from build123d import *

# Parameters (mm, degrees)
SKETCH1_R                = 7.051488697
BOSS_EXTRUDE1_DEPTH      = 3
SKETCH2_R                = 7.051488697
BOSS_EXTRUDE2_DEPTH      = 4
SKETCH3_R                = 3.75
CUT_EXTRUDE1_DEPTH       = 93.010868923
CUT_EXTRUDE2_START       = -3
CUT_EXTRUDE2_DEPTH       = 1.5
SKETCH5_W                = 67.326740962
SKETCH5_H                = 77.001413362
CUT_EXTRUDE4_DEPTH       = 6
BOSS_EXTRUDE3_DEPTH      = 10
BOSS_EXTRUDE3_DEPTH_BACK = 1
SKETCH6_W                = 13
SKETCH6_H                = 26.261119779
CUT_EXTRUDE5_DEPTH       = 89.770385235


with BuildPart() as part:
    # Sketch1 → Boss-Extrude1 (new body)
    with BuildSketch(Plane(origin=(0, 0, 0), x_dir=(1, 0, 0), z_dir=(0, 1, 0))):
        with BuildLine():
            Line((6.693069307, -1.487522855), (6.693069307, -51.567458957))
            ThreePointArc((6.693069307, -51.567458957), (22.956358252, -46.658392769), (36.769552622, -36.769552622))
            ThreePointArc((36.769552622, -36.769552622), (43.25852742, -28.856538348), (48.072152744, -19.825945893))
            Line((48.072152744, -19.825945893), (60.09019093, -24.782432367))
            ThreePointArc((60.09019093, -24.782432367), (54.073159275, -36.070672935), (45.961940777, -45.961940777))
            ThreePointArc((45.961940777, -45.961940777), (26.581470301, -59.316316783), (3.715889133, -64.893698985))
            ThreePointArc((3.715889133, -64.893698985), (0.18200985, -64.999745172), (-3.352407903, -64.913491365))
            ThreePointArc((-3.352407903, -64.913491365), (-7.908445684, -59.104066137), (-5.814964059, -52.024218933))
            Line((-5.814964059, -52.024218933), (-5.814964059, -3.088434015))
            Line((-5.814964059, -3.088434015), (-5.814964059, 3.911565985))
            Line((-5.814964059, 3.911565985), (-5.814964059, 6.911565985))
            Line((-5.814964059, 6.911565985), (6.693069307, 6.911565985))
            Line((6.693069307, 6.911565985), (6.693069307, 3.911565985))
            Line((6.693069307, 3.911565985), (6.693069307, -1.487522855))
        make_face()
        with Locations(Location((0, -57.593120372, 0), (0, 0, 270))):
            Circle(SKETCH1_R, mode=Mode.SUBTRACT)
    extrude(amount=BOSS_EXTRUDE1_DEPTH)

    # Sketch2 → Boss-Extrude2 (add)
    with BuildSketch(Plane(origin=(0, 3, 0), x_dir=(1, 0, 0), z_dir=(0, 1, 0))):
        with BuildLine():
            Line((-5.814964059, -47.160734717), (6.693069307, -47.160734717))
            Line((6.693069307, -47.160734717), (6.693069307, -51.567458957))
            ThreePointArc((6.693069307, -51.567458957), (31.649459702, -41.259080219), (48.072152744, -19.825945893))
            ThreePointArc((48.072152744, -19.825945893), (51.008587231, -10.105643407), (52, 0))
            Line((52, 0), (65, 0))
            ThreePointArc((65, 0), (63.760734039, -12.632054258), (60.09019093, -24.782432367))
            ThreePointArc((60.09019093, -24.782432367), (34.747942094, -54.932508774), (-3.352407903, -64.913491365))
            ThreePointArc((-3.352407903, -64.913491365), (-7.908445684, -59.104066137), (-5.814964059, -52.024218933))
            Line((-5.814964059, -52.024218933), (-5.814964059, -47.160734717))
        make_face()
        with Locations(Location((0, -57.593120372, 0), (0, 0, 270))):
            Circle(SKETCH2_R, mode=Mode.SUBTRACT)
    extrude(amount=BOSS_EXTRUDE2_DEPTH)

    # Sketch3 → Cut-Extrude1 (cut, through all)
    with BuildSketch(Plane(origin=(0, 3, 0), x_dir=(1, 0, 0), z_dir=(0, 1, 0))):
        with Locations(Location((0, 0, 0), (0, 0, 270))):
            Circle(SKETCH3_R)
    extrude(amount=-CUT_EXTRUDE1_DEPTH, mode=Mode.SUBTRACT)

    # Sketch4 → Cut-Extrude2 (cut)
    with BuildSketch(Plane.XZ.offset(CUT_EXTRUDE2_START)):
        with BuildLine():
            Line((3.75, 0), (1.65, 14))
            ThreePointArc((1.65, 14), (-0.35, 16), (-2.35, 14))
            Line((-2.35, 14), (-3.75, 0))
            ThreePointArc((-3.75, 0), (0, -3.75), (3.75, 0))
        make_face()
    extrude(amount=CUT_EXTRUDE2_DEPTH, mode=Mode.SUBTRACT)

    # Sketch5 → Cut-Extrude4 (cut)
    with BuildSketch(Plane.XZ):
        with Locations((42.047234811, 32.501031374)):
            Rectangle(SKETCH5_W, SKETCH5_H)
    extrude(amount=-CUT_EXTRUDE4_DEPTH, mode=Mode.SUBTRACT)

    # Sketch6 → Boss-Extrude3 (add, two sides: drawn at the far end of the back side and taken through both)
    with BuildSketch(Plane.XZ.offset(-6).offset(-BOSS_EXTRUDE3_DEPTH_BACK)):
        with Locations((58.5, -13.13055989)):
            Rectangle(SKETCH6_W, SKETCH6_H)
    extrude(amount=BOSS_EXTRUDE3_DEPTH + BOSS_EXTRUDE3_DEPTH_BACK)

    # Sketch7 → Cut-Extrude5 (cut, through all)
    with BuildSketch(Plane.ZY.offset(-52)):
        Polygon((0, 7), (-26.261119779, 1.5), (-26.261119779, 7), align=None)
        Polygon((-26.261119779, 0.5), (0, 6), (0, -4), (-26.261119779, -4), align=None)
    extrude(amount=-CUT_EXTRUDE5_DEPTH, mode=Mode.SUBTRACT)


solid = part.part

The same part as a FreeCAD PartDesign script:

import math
import FreeCAD as App
import Part
import Sketcher

V = App.Vector
Q = App.Units.Quantity


def add_polygon(sketch, points):
    """Adds a closed chain of lines whose ends are joined by coincident constraints."""
    first, n = sketch.GeometryCount, len(points)
    for a, b in zip(points, points[1:] + points[:1]):
        sketch.addGeometry(Part.LineSegment(App.Vector(*a, 0), App.Vector(*b, 0)), False)
    for i in range(n):
        sketch.addConstraint(Sketcher.Constraint("Coincident", first + i, 2, first + (i + 1) % n, 1))

doc = App.newDocument("Part")
body = doc.addObject("PartDesign::Body", "Body")

# Sketch on XZ plane
sketch1 = doc.addObject("Sketcher::SketchObject", "Sketch")
body.addObject(sketch1)
sketch1.AttachmentSupport = (doc.XZ_Plane, [""])
sketch1.MapMode = "FlatFace"
sketch1.addGeometry([
    Part.ArcOfCircle(Part.Circle(V(0, 0, 0), V(0, 0, 1), 52), math.radians(45), math.radians(83)),  # 0
    Part.LineSegment(V(7, 52, 0), V(7, -7, 0)),  # 1
    Part.LineSegment(V(7, -7, 0), V(-6, -7, 0)),  # 2
    Part.LineSegment(V(-6, -7, 0), V(-6, 52, 0)),  # 3
    Part.ArcOfCircle(Part.Circle(V(0, 58, 0), V(0, 0, 1), 8), math.radians(115), math.radians(224)),  # 4
    Part.ArcOfCircle(Part.Circle(V(0, 0, 0), V(0, 0, 1), 65), math.radians(86.72), math.radians(92.96)),  # 5
    Part.ArcOfCircle(Part.Circle(V(0, 0, 0), V(0, 0, 1), 65), math.radians(45), math.radians(87)),  # 6
    Part.ArcOfCircle(Part.Circle(V(0, 0, 0), V(0, 0, 1), 65), math.radians(22), math.radians(45)),  # 7
    Part.LineSegment(V(60, 25, 0), V(48, 20, 0)),  # 8
    Part.ArcOfCircle(Part.Circle(V(0, 0, 0), V(0, 0, 1), 52), math.radians(22), math.radians(45)),  # 9
    Part.Circle(V(0, 58, 0), V(0, 0, 1), 7),  # 10
], False)
sketch1.addConstraint([
    Sketcher.Constraint("Coincident", 0, 2, 1, 1),
    Sketcher.Constraint("Coincident", 1, 2, 2, 1),
    Sketcher.Constraint("Coincident", 2, 2, 3, 1),
    Sketcher.Constraint("Coincident", 3, 2, 4, 2),
    Sketcher.Constraint("Coincident", 4, 1, 5, 2),
    Sketcher.Constraint("Tangent", 5, 1, 6, 2),
    Sketcher.Constraint("Tangent", 6, 1, 7, 2),
    Sketcher.Constraint("Coincident", 7, 1, 8, 1),
    Sketcher.Constraint("Coincident", 8, 2, 9, 1),
    Sketcher.Constraint("Tangent", 9, 2, 0, 1),
    Sketcher.Constraint("Vertical", 1),
    Sketcher.Constraint("Horizontal", 2),
    Sketcher.Constraint("Vertical", 3),
    Sketcher.Constraint("Coincident", 0, 3, -1, 1),
    Sketcher.Constraint("Coincident", 5, 3, -1, 1),
    Sketcher.Constraint("Coincident", 7, 3, -1, 1),
    Sketcher.Constraint("Coincident", 10, 3, 4, 3),
    Sketcher.Constraint("Equal", 0, 9),
    Sketcher.Constraint("PointOnObject", 4, 3, -2),
    Sketcher.Constraint("Radius", 0, Q("52 mm")),
    Sketcher.Constraint("Radius", 5, Q("65 mm")),
    Sketcher.Constraint("Radius", 4, Q("8.051489 mm")),
    Sketcher.Constraint("Diameter", 10, Q("14.102977 mm")),
    Sketcher.Constraint("DistanceY", 1, 2, 7, 1, Q("31.693998 mm")),
    Sketcher.Constraint("DistanceY", -1, 1, 5, 1, Q("64.893699 mm")),
    Sketcher.Constraint("DistanceY", 3, 2, 4, 3, Q("5.568901 mm")),
    Sketcher.Constraint("DistanceX", 9, 2, 8, 2, Q("11.3026 mm")),
    Sketcher.Constraint("DistanceX", 2, 2, 2, 1, Q("12.508033 mm")),
    Sketcher.Constraint("DistanceY", 1, 2, 1, 1, Q("58.479025 mm")),
    Sketcher.Constraint("DistanceY", 3, 1, 3, 2, Q("58.935785 mm")),
    Sketcher.Constraint("DistanceX", -1, 1, 6, 1, Q("45.961941 mm")),
    Sketcher.Constraint("DistanceX", 8, 2, 7, 1, Q("12.018038 mm")),
])
pad1 = doc.addObject("PartDesign::Pad", "Pad")
body.addObject(pad1)
pad1.Profile = sketch1
pad1.Length = 3
pad1.Reversed = True

# Sketch on XZ plane
sketch2 = doc.addObject("Sketcher::SketchObject", "Sketch001")
body.addObject(sketch2)
sketch2.AttachmentSupport = (doc.XZ_Plane, [""])
sketch2.MapMode = "FlatFace"
sketch2.AttachmentOffset = App.Placement(V(0, 0, -3), App.Rotation())
sketch2.addGeometry([
    Part.LineSegment(V(6.7, 47.2, 0), V(-5.8, 47.2, 0)),  # 0
    Part.LineSegment(V(-5.8, 47.2, 0), V(-5.8, 52, 0)),  # 1
    Part.ArcOfCircle(Part.Circle(V(0, 57.6, 0), V(0, 0, 1), 8.1), math.radians(115), math.radians(224)),  # 2
    Part.ArcOfCircle(Part.Circle(V(0, 0, 0), V(0, 0, 1), 65), math.radians(22), math.radians(93)),  # 3
    Part.ArcOfCircle(Part.Circle(V(0, 0, 0), V(0, 0, 1), 65), math.radians(0), math.radians(22)),  # 4
    Part.LineSegment(V(65, 0, 0), V(52, 0, 0)),  # 5
    Part.ArcOfCircle(Part.Circle(V(0, 0, 0), V(0, 0, 1), 52), math.radians(0), math.radians(22)),  # 6
    Part.ArcOfCircle(Part.Circle(V(0, 0, 0), V(0, 0, 1), 52), math.radians(22), math.radians(83)),  # 7
    Part.LineSegment(V(6.7, 51.6, 0), V(6.7, 47.2, 0)),  # 8
    Part.Circle(V(0, 57.6, 0), V(0, 0, 1), 7.1),  # 9
], False)
sketch2.addConstraint([
    Sketcher.Constraint("Coincident", 0, 2, 1, 1),
    Sketcher.Constraint("Coincident", 1, 2, 2, 2),
    Sketcher.Constraint("Coincident", 2, 1, 3, 2),
    Sketcher.Constraint("Tangent", 3, 1, 4, 2),
    Sketcher.Constraint("Coincident", 4, 1, 5, 1),
    Sketcher.Constraint("Coincident", 5, 2, 6, 1),
    Sketcher.Constraint("Tangent", 6, 2, 7, 1),
    Sketcher.Constraint("Coincident", 7, 2, 8, 1),
    Sketcher.Constraint("Coincident", 8, 2, 0, 1),
    Sketcher.Constraint("Horizontal", 0),
    Sketcher.Constraint("Vertical", 1),
    Sketcher.Constraint("Horizontal", 5),
    Sketcher.Constraint("Vertical", 8),
    Sketcher.Constraint("Coincident", 3, 3, -1, 1),
    Sketcher.Constraint("Coincident", 6, 3, -1, 1),
    Sketcher.Constraint("Coincident", 9, 3, 2, 3),
    Sketcher.Constraint("Equal", 3, 4),
    Sketcher.Constraint("Equal", 6, 7),
    Sketcher.Constraint("PointOnObject", 2, 3, -2),
    Sketcher.Constraint("PointOnObject", 4, 1, -1),
    Sketcher.Constraint("Radius", 3, Q("65 mm")),
    Sketcher.Constraint("Radius", 6, Q("52 mm")),
    Sketcher.Constraint("Radius", 2, Q("8.051489 mm")),
    Sketcher.Constraint("Diameter", 9, Q("14.102977 mm")),
    Sketcher.Constraint("DistanceY", 1, 2, 2, 3, Q("5.568901 mm")),
    Sketcher.Constraint("DistanceX", 0, 2, 0, 1, Q("12.508033 mm")),
    Sketcher.Constraint("DistanceY", 1, 1, 1, 2, Q("4.863484 mm")),
    Sketcher.Constraint("DistanceY", 8, 2, 8, 1, Q("4.406724 mm")),
    Sketcher.Constraint("DistanceX", -1, 1, 3, 1, Q("60.090191 mm")),
    Sketcher.Constraint("DistanceX", 6, 2, 3, 1, Q("12.018038 mm")),
])
pad2 = doc.addObject("PartDesign::Pad", "Pad001")
body.addObject(pad2)
pad2.Profile = sketch2
pad2.Length = 4
pad2.Reversed = True

# Sketch on XZ plane
sketch3 = doc.addObject("Sketcher::SketchObject", "Sketch002")
body.addObject(sketch3)
sketch3.AttachmentSupport = (doc.XZ_Plane, [""])
sketch3.MapMode = "FlatFace"
sketch3.AttachmentOffset = App.Placement(V(0, 0, -3), App.Rotation())
sketch3.addGeometry(Part.Circle(V(0, 0, 0), V(0, 0, 1), 3.8), False)
sketch3.addConstraint([
    Sketcher.Constraint("Coincident", 0, 3, -1, 1),
    Sketcher.Constraint("Diameter", 0, Q("7.5 mm")),
])
pocket1 = doc.addObject("PartDesign::Pocket", "Pocket")
body.addObject(pocket1)
pocket1.Profile = sketch3
pocket1.Type = "ThroughAll"
pocket1.Reversed = True

# Sketch on XZ plane
sketch4 = doc.addObject("Sketcher::SketchObject", "Sketch003")
body.addObject(sketch4)
sketch4.AttachmentSupport = (doc.XZ_Plane, [""])
sketch4.MapMode = "FlatFace"
sketch4.AttachmentOffset = App.Placement(V(0, 0, -3), App.Rotation())
sketch4.addGeometry([
    Part.LineSegment(V(3.8, 0, 0), V(1.6, 14, 0)),
    Part.ArcOfCircle(Part.Circle(V(-0.3, 14, 0), V(0, 0, 1), 2), math.radians(0), math.radians(180)),
    Part.LineSegment(V(-2.4, 14, 0), V(-3.8, 0, 0)),
    Part.ArcOfCircle(Part.Circle(V(0, 0, 0), V(0, 0, 1), 3.8), math.radians(180), math.radians(360)),
], False)
sketch4.addConstraint([
    Sketcher.Constraint("Coincident", 0, 2, 1, 1),
    Sketcher.Constraint("Coincident", 1, 2, 2, 1),
    Sketcher.Constraint("Coincident", 2, 2, 3, 1),
    Sketcher.Constraint("Coincident", 3, 2, 0, 1),
    Sketcher.Constraint("Coincident", 3, 3, -1, 1),
    Sketcher.Constraint("PointOnObject", 2, 2, -1),
    Sketcher.Constraint("PointOnObject", 3, 2, -1),
    Sketcher.Constraint("Horizontal", 1, 3, 0, 2),
    Sketcher.Constraint("Horizontal", 0, 2, 1, 2),
    Sketcher.Constraint("Radius", 1, Q("2 mm")),
    Sketcher.Constraint("Radius", 3, Q("3.75 mm")),
    Sketcher.Constraint("DistanceY", -1, 1, 1, 3, Q("14 mm")),
    Sketcher.Constraint("DistanceX", 2, 2, 1, 2, Q("1.4 mm")),
])
pocket2 = doc.addObject("PartDesign::Pocket", "Pocket001")
body.addObject(pocket2)
pocket2.Profile = sketch4
pocket2.Length = 1.5
pocket2.Reversed = True

# Sketch on XZ plane
sketch5 = doc.addObject("Sketcher::SketchObject", "Sketch004")
body.addObject(sketch5)
sketch5.AttachmentSupport = (doc.XZ_Plane, [""])
sketch5.MapMode = "FlatFace"
add_polygon(sketch5, [(8, 71), (8, -6), (76, -6), (76, 71)])  # lines 0-3
sketch5.addConstraint([
    Sketcher.Constraint("Vertical", 0),
    Sketcher.Constraint("Horizontal", 1),
    Sketcher.Constraint("Vertical", 2),
    Sketcher.Constraint("Horizontal", 3),
    Sketcher.Constraint("DistanceX", 1, 1, 1, 2, Q("67.326741 mm")),
    Sketcher.Constraint("DistanceY", 0, 2, 0, 1, Q("77.001413 mm")),
    Sketcher.Constraint("DistanceY", -1, 1, 2, 2, Q("71.001738 mm")),
    Sketcher.Constraint("DistanceX", -1, 1, 0, 2, Q("8.383864 mm")),
])
pocket3 = doc.addObject("PartDesign::Pocket", "Pocket002")
body.addObject(pocket3)
pocket3.Profile = sketch5
pocket3.Length = 6

# Sketch on XZ plane
sketch6 = doc.addObject("Sketcher::SketchObject", "Sketch005")
body.addObject(sketch6)
sketch6.AttachmentSupport = (doc.XZ_Plane, [""])
sketch6.MapMode = "FlatFace"
sketch6.AttachmentOffset = App.Placement(V(0, 0, -6), App.Rotation())
add_polygon(sketch6, [(52, 0), (52, -26), (65, -26), (65, 0)])  # lines 0-3
sketch6.addConstraint([
    Sketcher.Constraint("Vertical", 0),
    Sketcher.Constraint("Horizontal", 1),
    Sketcher.Constraint("Vertical", 2),
    Sketcher.Constraint("Horizontal", 3),
    Sketcher.Constraint("PointOnObject", 2, 2, -1),
    Sketcher.Constraint("DistanceX", 1, 1, 1, 2, Q("13 mm")),
    Sketcher.Constraint("DistanceX", -1, 1, 0, 2, Q("52 mm")),
    Sketcher.Constraint("DistanceY", 0, 2, 0, 1, Q("26.26112 mm")),
])
pad3 = doc.addObject("PartDesign::Pad", "Pad002")
body.addObject(pad3)
pad3.Profile = sketch6
pad3.Type = "TwoLengths"
pad3.Length = 10
pad3.Length2 = 1

# Sketch on YZ plane
sketch7 = doc.addObject("Sketcher::SketchObject", "Sketch006")
body.addObject(sketch7)
sketch7.AttachmentSupport = (doc.YZ_Plane, [""])
sketch7.MapMode = "FlatFace"
sketch7.AttachmentOffset = App.Placement(V(0, 0, 52), App.Rotation())
add_polygon(sketch7, [(1.5, -26.3), (7, 0), (7, -26.3)])  # lines 0-2
add_polygon(sketch7, [(6, 0), (0.5, -26.3), (-4, -26.3), (-4, 0)])  # lines 3-6
sketch7.addConstraint([
    Sketcher.Constraint("Vertical", 1),
    Sketcher.Constraint("Horizontal", 2),
    Sketcher.Constraint("Horizontal", 4),
    Sketcher.Constraint("Vertical", 5),
    Sketcher.Constraint("Horizontal", 6),
    Sketcher.Constraint("PointOnObject", 0, 2, -1),
    Sketcher.Constraint("PointOnObject", 5, 2, -1),
    Sketcher.Constraint("Parallel", 0, 3),
    Sketcher.Constraint("Horizontal", 2, 2, 3, 2),
    Sketcher.Constraint("DistanceX", 6, 1, 6, 2, Q("10 mm")),
    Sketcher.Constraint("DistanceX", 2, 2, 2, 1, Q("5.5 mm")),
    Sketcher.Constraint("DistanceX", -1, 1, 0, 2, Q("7 mm")),
    Sketcher.Constraint("DistanceX", 4, 2, -1, 1, Q("4 mm")),
    Sketcher.Constraint("DistanceY", 1, 2, 1, 1, Q("26.26112 mm")),
])
pocket4 = doc.addObject("PartDesign::Pocket", "Pocket003")
body.addObject(pocket4)
pocket4.Profile = sketch7
pocket4.Type = "ThroughAll"
pocket4.Reversed = True

doc.recompute()
